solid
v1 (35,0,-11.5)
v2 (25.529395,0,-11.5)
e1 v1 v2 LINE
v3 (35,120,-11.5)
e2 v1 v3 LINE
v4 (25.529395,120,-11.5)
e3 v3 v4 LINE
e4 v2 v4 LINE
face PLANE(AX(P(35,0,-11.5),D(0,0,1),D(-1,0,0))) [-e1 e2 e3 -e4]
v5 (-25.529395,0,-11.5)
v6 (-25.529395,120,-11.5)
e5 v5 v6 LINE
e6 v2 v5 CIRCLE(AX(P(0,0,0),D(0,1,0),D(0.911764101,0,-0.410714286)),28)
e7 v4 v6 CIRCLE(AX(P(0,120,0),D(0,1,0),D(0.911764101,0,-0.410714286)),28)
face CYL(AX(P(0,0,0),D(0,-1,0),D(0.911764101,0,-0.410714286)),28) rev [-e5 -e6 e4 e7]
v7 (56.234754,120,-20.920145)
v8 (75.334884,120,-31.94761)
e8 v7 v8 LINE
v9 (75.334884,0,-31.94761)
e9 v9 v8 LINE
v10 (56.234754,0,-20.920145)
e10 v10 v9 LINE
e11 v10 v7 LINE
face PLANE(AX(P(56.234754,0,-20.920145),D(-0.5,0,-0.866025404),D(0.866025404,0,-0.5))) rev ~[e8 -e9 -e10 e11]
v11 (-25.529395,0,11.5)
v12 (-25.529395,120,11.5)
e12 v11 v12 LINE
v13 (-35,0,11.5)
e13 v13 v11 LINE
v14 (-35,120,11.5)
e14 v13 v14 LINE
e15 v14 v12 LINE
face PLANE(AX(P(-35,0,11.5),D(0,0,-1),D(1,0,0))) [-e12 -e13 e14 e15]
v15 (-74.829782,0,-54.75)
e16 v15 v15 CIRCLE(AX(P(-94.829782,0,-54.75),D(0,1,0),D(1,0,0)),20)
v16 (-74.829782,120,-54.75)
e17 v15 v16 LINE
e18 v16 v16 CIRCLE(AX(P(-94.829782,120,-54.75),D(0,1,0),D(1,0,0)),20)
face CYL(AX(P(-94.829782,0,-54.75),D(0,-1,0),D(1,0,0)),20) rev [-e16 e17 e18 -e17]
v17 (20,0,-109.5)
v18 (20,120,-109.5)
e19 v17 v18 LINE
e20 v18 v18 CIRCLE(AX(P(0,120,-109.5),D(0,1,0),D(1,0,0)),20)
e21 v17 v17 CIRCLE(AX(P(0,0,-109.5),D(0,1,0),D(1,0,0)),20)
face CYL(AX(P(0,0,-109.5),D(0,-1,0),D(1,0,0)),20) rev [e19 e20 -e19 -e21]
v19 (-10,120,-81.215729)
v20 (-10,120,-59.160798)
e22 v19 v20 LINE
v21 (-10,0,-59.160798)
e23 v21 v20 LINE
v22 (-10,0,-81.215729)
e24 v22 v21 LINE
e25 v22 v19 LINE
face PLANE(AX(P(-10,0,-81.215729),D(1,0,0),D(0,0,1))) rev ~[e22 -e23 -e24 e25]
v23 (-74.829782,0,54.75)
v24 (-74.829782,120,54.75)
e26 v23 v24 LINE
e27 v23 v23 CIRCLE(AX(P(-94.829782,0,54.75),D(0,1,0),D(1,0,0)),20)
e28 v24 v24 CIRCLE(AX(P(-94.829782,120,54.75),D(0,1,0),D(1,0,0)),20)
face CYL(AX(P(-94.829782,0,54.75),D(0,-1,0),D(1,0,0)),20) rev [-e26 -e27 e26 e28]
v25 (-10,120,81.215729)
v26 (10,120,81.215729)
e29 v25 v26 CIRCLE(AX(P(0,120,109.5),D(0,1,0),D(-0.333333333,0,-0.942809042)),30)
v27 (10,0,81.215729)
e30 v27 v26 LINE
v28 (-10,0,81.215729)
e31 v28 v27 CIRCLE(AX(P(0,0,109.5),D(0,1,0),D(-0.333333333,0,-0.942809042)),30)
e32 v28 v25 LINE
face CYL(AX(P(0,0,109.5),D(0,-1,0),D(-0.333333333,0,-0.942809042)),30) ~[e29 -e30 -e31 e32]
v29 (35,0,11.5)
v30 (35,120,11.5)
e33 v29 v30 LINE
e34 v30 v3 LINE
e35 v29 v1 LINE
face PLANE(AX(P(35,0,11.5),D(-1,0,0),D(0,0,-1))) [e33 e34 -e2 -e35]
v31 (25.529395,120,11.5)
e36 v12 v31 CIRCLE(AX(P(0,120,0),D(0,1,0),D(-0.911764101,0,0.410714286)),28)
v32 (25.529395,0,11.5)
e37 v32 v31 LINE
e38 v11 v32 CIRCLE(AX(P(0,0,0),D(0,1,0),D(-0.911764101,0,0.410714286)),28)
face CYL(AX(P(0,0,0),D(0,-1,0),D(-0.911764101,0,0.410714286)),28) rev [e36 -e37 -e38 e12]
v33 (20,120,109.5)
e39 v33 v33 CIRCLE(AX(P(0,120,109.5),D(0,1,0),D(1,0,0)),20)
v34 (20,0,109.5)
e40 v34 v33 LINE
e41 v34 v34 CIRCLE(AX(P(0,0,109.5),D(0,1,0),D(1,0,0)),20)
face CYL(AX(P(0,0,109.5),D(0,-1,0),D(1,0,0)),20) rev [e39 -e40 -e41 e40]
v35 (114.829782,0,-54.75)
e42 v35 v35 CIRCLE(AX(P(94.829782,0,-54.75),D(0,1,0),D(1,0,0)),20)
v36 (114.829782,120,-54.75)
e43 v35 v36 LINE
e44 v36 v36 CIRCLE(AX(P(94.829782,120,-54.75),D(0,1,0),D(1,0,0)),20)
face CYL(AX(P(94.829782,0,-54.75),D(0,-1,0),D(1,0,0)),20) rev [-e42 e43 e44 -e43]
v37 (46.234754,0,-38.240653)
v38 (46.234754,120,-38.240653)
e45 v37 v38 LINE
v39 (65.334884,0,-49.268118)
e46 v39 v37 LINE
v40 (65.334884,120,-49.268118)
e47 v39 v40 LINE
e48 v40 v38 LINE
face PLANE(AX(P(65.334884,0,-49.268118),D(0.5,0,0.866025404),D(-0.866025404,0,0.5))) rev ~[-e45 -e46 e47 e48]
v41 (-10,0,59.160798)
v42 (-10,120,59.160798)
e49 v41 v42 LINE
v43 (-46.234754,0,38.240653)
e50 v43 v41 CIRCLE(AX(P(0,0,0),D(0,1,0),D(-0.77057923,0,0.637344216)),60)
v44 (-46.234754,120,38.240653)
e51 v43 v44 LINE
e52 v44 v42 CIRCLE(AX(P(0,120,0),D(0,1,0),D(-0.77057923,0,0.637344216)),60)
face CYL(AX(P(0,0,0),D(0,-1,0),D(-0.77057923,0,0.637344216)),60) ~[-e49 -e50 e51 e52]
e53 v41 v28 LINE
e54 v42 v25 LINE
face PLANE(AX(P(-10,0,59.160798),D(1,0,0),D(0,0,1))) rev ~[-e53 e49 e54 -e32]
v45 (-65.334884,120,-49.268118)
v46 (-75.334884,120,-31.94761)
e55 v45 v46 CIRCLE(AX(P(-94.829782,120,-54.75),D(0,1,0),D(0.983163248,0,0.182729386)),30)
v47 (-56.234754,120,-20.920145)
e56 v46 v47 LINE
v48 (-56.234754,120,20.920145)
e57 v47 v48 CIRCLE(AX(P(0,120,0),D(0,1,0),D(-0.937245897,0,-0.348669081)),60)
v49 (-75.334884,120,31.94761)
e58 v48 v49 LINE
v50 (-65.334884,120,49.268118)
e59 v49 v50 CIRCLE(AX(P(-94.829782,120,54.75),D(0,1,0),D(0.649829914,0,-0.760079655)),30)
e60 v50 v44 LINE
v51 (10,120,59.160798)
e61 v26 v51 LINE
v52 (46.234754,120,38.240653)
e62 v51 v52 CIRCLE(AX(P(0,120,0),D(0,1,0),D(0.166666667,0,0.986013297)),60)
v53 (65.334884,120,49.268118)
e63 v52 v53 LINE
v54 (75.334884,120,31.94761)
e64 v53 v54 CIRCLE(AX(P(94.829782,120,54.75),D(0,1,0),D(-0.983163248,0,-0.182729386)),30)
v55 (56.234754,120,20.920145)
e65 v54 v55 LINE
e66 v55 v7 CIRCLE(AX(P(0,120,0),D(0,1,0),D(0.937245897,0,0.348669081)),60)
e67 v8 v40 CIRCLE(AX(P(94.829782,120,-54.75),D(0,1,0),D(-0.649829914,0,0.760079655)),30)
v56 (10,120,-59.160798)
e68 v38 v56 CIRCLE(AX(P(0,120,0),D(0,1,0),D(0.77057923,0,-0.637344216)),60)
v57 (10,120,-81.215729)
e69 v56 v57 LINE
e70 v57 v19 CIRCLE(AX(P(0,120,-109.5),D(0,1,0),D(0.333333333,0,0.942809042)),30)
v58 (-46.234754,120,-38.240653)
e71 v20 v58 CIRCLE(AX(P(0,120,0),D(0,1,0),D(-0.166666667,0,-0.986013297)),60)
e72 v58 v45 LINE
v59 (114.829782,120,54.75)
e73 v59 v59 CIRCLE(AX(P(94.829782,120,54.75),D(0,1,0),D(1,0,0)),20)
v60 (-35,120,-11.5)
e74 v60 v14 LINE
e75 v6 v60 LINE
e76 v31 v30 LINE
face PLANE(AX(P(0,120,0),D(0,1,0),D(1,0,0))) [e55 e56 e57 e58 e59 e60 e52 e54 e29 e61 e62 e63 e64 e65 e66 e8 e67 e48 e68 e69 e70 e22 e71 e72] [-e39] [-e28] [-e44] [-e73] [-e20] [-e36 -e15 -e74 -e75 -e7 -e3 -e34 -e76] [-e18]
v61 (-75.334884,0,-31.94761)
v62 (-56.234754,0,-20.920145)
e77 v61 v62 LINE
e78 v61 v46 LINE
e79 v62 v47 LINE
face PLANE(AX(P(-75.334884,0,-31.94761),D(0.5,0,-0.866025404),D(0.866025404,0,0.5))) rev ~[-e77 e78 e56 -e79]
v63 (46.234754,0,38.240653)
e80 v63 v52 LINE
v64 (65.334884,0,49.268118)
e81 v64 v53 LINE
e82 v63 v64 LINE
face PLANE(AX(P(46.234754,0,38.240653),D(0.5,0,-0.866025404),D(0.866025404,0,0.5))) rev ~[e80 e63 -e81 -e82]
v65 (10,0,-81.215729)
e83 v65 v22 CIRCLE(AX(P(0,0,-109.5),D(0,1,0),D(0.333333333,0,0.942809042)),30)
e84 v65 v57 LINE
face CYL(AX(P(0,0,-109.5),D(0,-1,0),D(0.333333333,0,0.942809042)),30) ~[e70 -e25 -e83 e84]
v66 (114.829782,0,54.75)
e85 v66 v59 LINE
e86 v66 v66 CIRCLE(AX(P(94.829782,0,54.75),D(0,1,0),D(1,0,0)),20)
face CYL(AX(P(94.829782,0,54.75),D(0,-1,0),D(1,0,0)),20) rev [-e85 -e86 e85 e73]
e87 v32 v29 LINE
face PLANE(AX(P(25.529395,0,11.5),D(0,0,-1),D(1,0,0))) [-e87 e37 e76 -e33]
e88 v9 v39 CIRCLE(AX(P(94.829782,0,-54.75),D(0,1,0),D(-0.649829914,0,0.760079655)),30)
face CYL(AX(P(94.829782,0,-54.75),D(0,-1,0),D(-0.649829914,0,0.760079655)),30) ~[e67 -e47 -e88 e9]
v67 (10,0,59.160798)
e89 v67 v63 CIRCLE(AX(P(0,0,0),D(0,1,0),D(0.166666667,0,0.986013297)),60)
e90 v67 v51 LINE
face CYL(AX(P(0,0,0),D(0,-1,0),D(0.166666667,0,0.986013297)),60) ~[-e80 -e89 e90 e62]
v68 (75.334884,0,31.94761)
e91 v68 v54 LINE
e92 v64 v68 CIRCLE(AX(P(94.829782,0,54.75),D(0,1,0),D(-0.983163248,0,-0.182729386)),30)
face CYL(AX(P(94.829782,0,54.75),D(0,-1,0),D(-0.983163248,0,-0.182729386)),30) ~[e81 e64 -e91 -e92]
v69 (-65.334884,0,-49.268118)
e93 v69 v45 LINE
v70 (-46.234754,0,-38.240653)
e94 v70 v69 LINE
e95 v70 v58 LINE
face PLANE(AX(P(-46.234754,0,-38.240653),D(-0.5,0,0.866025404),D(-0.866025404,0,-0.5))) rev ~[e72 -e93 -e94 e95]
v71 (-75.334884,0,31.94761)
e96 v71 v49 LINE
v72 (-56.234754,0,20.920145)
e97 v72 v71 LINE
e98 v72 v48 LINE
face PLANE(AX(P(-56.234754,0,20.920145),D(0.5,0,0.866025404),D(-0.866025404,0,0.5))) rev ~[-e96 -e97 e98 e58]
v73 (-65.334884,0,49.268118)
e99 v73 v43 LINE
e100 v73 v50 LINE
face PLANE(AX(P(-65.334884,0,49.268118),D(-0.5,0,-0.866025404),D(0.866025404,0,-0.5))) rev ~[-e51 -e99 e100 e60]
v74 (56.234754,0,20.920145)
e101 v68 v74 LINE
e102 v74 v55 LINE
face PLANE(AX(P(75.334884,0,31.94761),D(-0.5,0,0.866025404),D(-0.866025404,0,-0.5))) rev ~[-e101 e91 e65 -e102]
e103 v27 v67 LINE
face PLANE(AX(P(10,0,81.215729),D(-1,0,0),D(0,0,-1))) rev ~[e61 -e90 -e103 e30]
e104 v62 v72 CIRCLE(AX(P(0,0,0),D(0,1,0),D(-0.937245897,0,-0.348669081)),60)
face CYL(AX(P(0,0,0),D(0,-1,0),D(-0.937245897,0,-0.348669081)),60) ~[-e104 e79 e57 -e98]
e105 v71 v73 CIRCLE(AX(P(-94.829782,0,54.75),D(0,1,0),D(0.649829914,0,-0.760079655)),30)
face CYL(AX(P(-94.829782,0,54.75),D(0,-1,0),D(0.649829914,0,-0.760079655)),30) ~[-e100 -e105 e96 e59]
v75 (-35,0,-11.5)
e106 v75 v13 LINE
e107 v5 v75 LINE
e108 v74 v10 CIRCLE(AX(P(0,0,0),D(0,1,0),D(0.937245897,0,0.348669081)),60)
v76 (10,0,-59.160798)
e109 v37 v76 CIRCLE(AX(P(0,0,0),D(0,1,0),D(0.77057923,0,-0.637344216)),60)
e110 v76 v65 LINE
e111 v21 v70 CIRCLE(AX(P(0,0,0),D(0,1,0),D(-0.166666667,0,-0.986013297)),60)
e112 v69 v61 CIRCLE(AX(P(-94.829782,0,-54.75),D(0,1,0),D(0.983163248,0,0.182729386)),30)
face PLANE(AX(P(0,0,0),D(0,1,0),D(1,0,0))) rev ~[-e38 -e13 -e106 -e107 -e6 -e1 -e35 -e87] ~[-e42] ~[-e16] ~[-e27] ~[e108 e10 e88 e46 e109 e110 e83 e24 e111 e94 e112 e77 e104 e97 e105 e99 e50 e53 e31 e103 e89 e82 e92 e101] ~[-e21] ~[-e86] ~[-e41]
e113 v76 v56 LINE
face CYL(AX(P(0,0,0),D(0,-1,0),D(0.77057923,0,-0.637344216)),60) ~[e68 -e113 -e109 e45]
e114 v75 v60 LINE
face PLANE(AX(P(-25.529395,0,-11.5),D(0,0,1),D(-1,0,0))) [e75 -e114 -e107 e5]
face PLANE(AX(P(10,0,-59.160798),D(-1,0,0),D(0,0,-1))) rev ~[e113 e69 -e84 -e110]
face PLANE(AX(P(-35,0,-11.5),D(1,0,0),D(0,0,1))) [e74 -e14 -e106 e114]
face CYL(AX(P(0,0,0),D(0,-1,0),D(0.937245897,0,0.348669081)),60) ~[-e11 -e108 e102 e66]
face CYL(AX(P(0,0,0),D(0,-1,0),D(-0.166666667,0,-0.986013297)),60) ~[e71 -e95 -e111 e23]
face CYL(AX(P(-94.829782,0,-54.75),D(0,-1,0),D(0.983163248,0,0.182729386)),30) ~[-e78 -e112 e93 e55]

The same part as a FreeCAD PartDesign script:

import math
import FreeCAD as App
import Part
import Sketcher
from FreeCAD import Vector
Q = App.Units.Quantity

doc = App.newDocument("Part")
params = doc.addObject("Spreadsheet::Sheet", "Params")
for row, (alias, value) in enumerate([
    ("sketch1_diameter", "40 mm"),
    ("sketch1_radius", "60 mm"),
    ("sketch1_radius2", "30 mm"),
    ("sketch1_radius3", "28 mm"),
    ("sketch1_height", "23 mm"),
    ("pad1_length", "120 mm"),
], start=1):
    params.set(f"A{row}", alias)
    params.set(f"B{row}", "=" + value)
    params.setAlias(f"B{row}", alias)

body = doc.addObject("PartDesign::Body", "Body")

# Sketch on XZ plane
sketch1 = body.newObject("Sketcher::SketchObject", "Sketch")
sketch1.AttachmentSupport = (doc.getObject("XZ_Plane"), [""])
sketch1.MapMode = "FlatFace"
sketch1.addGeometry([
    Part.LineSegment(Vector(-10, -81.215729, 0), Vector(-10, -59.160798, 0)),  # 0
    Part.ArcOfCircle(Part.Circle(Vector(0, 0, 0), Vector(0, 0, 1), 60), math.radians(-140.405932), math.radians(-99.594068)),  # 1
    Part.LineSegment(Vector(-46.234754, -38.240653, 0), Vector(-65.334884, -49.268118, 0)),  # 2
    Part.ArcOfCircle(Part.Circle(Vector(-94.829782, -54.75, 0), Vector(0, 0, 1), 30), math.radians(49.471221), math.radians(370.528779)),  # 3
    Part.LineSegment(Vector(-75.334884, -31.94761, 0), Vector(-56.234754, -20.920145, 0)),  # 4
    Part.ArcOfCircle(Part.Circle(Vector(0, 0, 0), Vector(0, 0, 1), 60), math.radians(159.594068), math.radians(200.405932)),  # 5
    Part.LineSegment(Vector(-56.234754, 20.920145, 0), Vector(-75.334884, 31.94761, 0)),  # 6
    Part.ArcOfCircle(Part.Circle(Vector(-94.829782, 54.75, 0), Vector(0, 0, 1), 30), math.radians(-10.528779), math.radians(310.528779)),  # 7
    Part.LineSegment(Vector(-65.334884, 49.268118, 0), Vector(-46.234754, 38.240653, 0)),  # 8
    Part.ArcOfCircle(Part.Circle(Vector(0, 0, 0), Vector(0, 0, 1), 60), math.radians(99.594068), math.radians(140.405932)),  # 9
    Part.LineSegment(Vector(-10, 59.160798, 0), Vector(-10, 81.215729, 0)),  # 10
    Part.ArcOfCircle(Part.Circle(Vector(0, 109.5, 0), Vector(0, 0, 1), 30), math.radians(-70.528779), math.radians(250.528779)),  # 11
    Part.LineSegment(Vector(10, 81.215729, 0), Vector(10, 59.160798, 0)),  # 12
    Part.ArcOfCircle(Part.Circle(Vector(0, 0, 0), Vector(0, 0, 1), 60), math.radians(39.594068), math.radians(80.405932)),  # 13
    Part.LineSegment(Vector(46.234754, 38.240653, 0), Vector(65.334884, 49.268118, 0)),  # 14
    Part.ArcOfCircle(Part.Circle(Vector(94.829782, 54.75, 0), Vector(0, 0, 1), 30), math.radians(-130.528779), math.radians(190.528779)),  # 15
    Part.LineSegment(Vector(75.334884, 31.94761, 0), Vector(56.234754, 20.920145, 0)),  # 16
    Part.ArcOfCircle(Part.Circle(Vector(0, 0, 0), Vector(0, 0, 1), 60), math.radians(-20.405932), math.radians(20.405932)),  # 17
    Part.LineSegment(Vector(56.234754, -20.920145, 0), Vector(75.334884, -31.94761, 0)),  # 18
    Part.ArcOfCircle(Part.Circle(Vector(94.829782, -54.75, 0), Vector(0, 0, 1), 30), math.radians(169.471221), math.radians(490.528779)),  # 19
    Part.LineSegment(Vector(65.334884, -49.268118, 0), Vector(46.234754, -38.240653, 0)),  # 20
    Part.ArcOfCircle(Part.Circle(Vector(0, 0, 0), Vector(0, 0, 1), 60), math.radians(-80.405932), math.radians(-39.594068)),  # 21
    Part.LineSegment(Vector(10, -59.160798, 0), Vector(10, -81.215729, 0)),  # 22
    Part.ArcOfCircle(Part.Circle(Vector(0, -109.5, 0), Vector(0, 0, 1), 30), math.radians(109.471221), math.radians(430.528779)),  # 23
    Part.Circle(Vector(0, 109.5, 0), Vector(0, 0, 1), 20),  # 24
    Part.Circle(Vector(-94.829782, 54.75, 0), Vector(0, 0, 1), 20),  # 25
    Part.Circle(Vector(94.829782, 54.75, 0), Vector(0, 0, 1), 20),  # 26
    Part.Circle(Vector(-94.829782, -54.75, 0), Vector(0, 0, 1), 20),  # 27
    Part.LineSegment(Vector(-35, 11.5, 0), Vector(-35, -11.5, 0)),  # 28
    Part.LineSegment(Vector(-35, -11.5, 0), Vector(-25.529395, -11.5, 0)),  # 29
    Part.ArcOfCircle(Part.Circle(Vector(0, 0, 0), Vector(0, 0, 1), 28), math.radians(-155.750287), math.radians(-24.249713)),  # 30
    Part.LineSegment(Vector(25.529395, -11.5, 0), Vector(35, -11.5, 0)),  # 31
    Part.LineSegment(Vector(35, -11.5, 0), Vector(35, 11.5, 0)),  # 32
    Part.LineSegment(Vector(35, 11.5, 0), Vector(25.529395, 11.5, 0)),  # 33
    Part.ArcOfCircle(Part.Circle(Vector(0, 0, 0), Vector(0, 0, 1), 28), math.radians(24.249713), math.radians(155.750287)),  # 34
    Part.LineSegment(Vector(-25.529395, 11.5, 0), Vector(-35, 11.5, 0)),  # 35
    Part.Circle(Vector(0, -109.5, 0), Vector(0, 0, 1), 20),  # 36
    Part.Circle(Vector(94.829782, -54.75, 0), Vector(0, 0, 1), 20),  # 37
], False)
sketch1.addConstraint([
    Sketcher.Constraint("Coincident", 0, 2, 1, 2),
    Sketcher.Constraint("Coincident", 1, 1, 2, 1),
    Sketcher.Constraint("Coincident", 2, 2, 3, 2),
    Sketcher.Constraint("Coincident", 3, 1, 4, 1),
    Sketcher.Constraint("Coincident", 4, 2, 5, 2),
    Sketcher.Constraint("Coincident", 5, 1, 6, 1),
    Sketcher.Constraint("Coincident", 6, 2, 7, 2),
    Sketcher.Constraint("Coincident", 7, 1, 8, 1),
    Sketcher.Constraint("Coincident", 8, 2, 9, 2),
    Sketcher.Constraint("Coincident", 9, 1, 10, 1),
    Sketcher.Constraint("Coincident", 10, 2, 11, 2),
    Sketcher.Constraint("Coincident", 11, 1, 12, 1),
    Sketcher.Constraint("Coincident", 12, 2, 13, 2),
    Sketcher.Constraint("Coincident", 13, 1, 14, 1),
    Sketcher.Constraint("Coincident", 14, 2, 15, 2),
    Sketcher.Constraint("Coincident", 15, 1, 16, 1),
    Sketcher.Constraint("Coincident", 16, 2, 17, 2),
    Sketcher.Constraint("Coincident", 17, 1, 18, 1),
    Sketcher.Constraint("Coincident", 18, 2, 19, 2),
    Sketcher.Constraint("Coincident", 19, 1, 20, 1),
    Sketcher.Constraint("Coincident", 20, 2, 21, 2),
    Sketcher.Constraint("Coincident", 21, 1, 22, 1),
    Sketcher.Constraint("Coincident", 22, 2, 23, 2),
    Sketcher.Constraint("Coincident", 23, 1, 0, 1),
    Sketcher.Constraint("Coincident", 28, 2, 29, 1),
    Sketcher.Constraint("Coincident", 29, 2, 30, 1),
    Sketcher.Constraint("Coincident", 30, 2, 31, 1),
    Sketcher.Constraint("Coincident", 31, 2, 32, 1),
    Sketcher.Constraint("Coincident", 32, 2, 33, 1),
    Sketcher.Constraint("Coincident", 33, 2, 34, 1),
    Sketcher.Constraint("Coincident", 34, 2, 35, 1),
    Sketcher.Constraint("Coincident", 35, 2, 28, 1),
    Sketcher.Constraint("Vertical", 0),
    Sketcher.Constraint("Vertical", 10),
    Sketcher.Constraint("Vertical", 12),
    Sketcher.Constraint("Vertical", 22),
    Sketcher.Constraint("Vertical", 28),
    Sketcher.Constraint("Horizontal", 29),
    Sketcher.Constraint("Horizontal", 31),
    Sketcher.Constraint("Vertical", 32),
    Sketcher.Constraint("Horizontal", 33),
    Sketcher.Constraint("Horizontal", 35),
    Sketcher.Constraint("Coincident", 1, 3, -1, 1),
    Sketcher.Constraint("Coincident", 5, 3, -1, 1),
    Sketcher.Constraint("Coincident", 9, 3, -1, 1),
    Sketcher.Constraint("Coincident", 13, 3, -1, 1),
    Sketcher.Constraint("Coincident", 17, 3, -1, 1),
    Sketcher.Constraint("Coincident", 21, 3, -1, 1),
    Sketcher.Constraint("Coincident", 30, 3, -1, 1),
    Sketcher.Constraint("Coincident", 34, 3, -1, 1),
    Sketcher.Constraint("Coincident", 24, 3, 11, 3),
    Sketcher.Constraint("Coincident", 25, 3, 7, 3),
    Sketcher.Constraint("Coincident", 26, 3, 15, 3),
    Sketcher.Constraint("Coincident", 27, 3, 3, 3),
    Sketcher.Constraint("Coincident", 36, 3, 23, 3),
    Sketcher.Constraint("Coincident", 37, 3, 19, 3),
    Sketcher.Constraint("Equal", 1, 5),
    Sketcher.Constraint("Equal", 3, 7),
    Sketcher.Constraint("Equal", 5, 9),
    Sketcher.Constraint("Equal", 7, 11),
    Sketcher.Constraint("Equal", 9, 13),
    Sketcher.Constraint("Equal", 11, 15),
    Sketcher.Constraint("Equal", 13, 17),
    Sketcher.Constraint("Equal", 15, 19),
    Sketcher.Constraint("Equal", 17, 21),
    Sketcher.Constraint("Equal", 19, 23),
    Sketcher.Constraint("Equal", 24, 25),
    Sketcher.Constraint("Equal", 25, 26),
    Sketcher.Constraint("Equal", 26, 27),
    Sketcher.Constraint("Equal", 30, 34),
    Sketcher.Constraint("Equal", 27, 36),
    Sketcher.Constraint("Equal", 36, 37),
    Sketcher.Constraint("Symmetric", 3, 3, 15, 3, -1, 1),
    Sketcher.Constraint("Symmetric", 7, 3, 19, 3, -1, 1),
    Sketcher.Constraint("Symmetric", 11, 3, 23, 3, -1, 1),
    Sketcher.Constraint("Symmetric", 28, 2, 32, 2, -1, 1),
    Sketcher.Constraint("Symmetric", 7, 3, 15, 3, -2),
    Sketcher.Constraint("Symmetric", 10, 2, 11, 1, -2),
    Sketcher.Constraint("Parallel", 2, 4),
    Sketcher.Constraint("Parallel", 6, 8),
    Sketcher.Constraint("Parallel", 4, 14),
    Sketcher.Constraint("Parallel", 14, 16),
    Sketcher.Constraint("Parallel", 8, 18),
    Sketcher.Constraint("Parallel", 18, 20),
    Sketcher.Constraint("Horizontal", 8, 2, 13, 1),
    Sketcher.Constraint("Horizontal", 7, 1, 14, 2),
    Sketcher.Constraint("Horizontal", 6, 2, 15, 1),
    Sketcher.Constraint("Horizontal", 4, 2, 17, 1),
    Sketcher.Constraint("Horizontal", 2, 2, 19, 1),
    Sketcher.Constraint("Horizontal", 0, 2, 21, 1),
    Sketcher.Constraint("Horizontal", 29, 2, 30, 2),
    Sketcher.Constraint("Horizontal", 33, 2, 34, 2),
    Sketcher.Constraint("Vertical", 4, 2, 5, 1),
    Sketcher.Constraint("Vertical", 2, 2, 7, 1),
    Sketcher.Constraint("Vertical", 0, 2, 9, 1),
    Sketcher.Constraint("Equal", 2, 4),
    Sketcher.Constraint("Diameter", 24, Q("40 mm")),
    Sketcher.Constraint("Radius", 1, Q("60 mm")),
    Sketcher.Constraint("Radius", 3, Q("30 mm")),
    Sketcher.Constraint("Radius", 30, Q("28 mm")),
    Sketcher.Constraint("DistanceY", 28, 2, 28, 1, Q("23 mm")),
    Sketcher.Constraint("Angle", 2, Q("-150 deg")),
    Sketcher.Constraint("DistanceX", 0, 2, -1, 1, Q("10 mm")),
    Sketcher.Constraint("DistanceX", 28, 2, -1, 1, Q("35 mm")),
    Sketcher.Constraint("DistanceX", 3, 1, 2, 2, Q("10 mm")),
    Sketcher.Constraint("DistanceY", -1, 1, 11, 3, Q("109.5 mm")),
    Sketcher.Constraint("DistanceY", 3, 3, 7, 3, Q("109.5 mm")),
    Sketcher.Constraint("Distance", 2, Q("22.054931 mm")),
])
sketch1.setExpression("Constraints[96]", "Params.sketch1_diameter")
sketch1.setExpression("Constraints[97]", "Params.sketch1_radius")
sketch1.setExpression("Constraints[98]", "Params.sketch1_radius2")
sketch1.setExpression("Constraints[99]", "Params.sketch1_radius3")
sketch1.setExpression("Constraints[100]", "Params.sketch1_height")
pad1 = body.newObject("PartDesign::Pad", "Pad")
pad1.Profile = sketch1
pad1.setExpression("Length", "Params.pad1_length")
pad1.Reversed = True

doc.recompute()
